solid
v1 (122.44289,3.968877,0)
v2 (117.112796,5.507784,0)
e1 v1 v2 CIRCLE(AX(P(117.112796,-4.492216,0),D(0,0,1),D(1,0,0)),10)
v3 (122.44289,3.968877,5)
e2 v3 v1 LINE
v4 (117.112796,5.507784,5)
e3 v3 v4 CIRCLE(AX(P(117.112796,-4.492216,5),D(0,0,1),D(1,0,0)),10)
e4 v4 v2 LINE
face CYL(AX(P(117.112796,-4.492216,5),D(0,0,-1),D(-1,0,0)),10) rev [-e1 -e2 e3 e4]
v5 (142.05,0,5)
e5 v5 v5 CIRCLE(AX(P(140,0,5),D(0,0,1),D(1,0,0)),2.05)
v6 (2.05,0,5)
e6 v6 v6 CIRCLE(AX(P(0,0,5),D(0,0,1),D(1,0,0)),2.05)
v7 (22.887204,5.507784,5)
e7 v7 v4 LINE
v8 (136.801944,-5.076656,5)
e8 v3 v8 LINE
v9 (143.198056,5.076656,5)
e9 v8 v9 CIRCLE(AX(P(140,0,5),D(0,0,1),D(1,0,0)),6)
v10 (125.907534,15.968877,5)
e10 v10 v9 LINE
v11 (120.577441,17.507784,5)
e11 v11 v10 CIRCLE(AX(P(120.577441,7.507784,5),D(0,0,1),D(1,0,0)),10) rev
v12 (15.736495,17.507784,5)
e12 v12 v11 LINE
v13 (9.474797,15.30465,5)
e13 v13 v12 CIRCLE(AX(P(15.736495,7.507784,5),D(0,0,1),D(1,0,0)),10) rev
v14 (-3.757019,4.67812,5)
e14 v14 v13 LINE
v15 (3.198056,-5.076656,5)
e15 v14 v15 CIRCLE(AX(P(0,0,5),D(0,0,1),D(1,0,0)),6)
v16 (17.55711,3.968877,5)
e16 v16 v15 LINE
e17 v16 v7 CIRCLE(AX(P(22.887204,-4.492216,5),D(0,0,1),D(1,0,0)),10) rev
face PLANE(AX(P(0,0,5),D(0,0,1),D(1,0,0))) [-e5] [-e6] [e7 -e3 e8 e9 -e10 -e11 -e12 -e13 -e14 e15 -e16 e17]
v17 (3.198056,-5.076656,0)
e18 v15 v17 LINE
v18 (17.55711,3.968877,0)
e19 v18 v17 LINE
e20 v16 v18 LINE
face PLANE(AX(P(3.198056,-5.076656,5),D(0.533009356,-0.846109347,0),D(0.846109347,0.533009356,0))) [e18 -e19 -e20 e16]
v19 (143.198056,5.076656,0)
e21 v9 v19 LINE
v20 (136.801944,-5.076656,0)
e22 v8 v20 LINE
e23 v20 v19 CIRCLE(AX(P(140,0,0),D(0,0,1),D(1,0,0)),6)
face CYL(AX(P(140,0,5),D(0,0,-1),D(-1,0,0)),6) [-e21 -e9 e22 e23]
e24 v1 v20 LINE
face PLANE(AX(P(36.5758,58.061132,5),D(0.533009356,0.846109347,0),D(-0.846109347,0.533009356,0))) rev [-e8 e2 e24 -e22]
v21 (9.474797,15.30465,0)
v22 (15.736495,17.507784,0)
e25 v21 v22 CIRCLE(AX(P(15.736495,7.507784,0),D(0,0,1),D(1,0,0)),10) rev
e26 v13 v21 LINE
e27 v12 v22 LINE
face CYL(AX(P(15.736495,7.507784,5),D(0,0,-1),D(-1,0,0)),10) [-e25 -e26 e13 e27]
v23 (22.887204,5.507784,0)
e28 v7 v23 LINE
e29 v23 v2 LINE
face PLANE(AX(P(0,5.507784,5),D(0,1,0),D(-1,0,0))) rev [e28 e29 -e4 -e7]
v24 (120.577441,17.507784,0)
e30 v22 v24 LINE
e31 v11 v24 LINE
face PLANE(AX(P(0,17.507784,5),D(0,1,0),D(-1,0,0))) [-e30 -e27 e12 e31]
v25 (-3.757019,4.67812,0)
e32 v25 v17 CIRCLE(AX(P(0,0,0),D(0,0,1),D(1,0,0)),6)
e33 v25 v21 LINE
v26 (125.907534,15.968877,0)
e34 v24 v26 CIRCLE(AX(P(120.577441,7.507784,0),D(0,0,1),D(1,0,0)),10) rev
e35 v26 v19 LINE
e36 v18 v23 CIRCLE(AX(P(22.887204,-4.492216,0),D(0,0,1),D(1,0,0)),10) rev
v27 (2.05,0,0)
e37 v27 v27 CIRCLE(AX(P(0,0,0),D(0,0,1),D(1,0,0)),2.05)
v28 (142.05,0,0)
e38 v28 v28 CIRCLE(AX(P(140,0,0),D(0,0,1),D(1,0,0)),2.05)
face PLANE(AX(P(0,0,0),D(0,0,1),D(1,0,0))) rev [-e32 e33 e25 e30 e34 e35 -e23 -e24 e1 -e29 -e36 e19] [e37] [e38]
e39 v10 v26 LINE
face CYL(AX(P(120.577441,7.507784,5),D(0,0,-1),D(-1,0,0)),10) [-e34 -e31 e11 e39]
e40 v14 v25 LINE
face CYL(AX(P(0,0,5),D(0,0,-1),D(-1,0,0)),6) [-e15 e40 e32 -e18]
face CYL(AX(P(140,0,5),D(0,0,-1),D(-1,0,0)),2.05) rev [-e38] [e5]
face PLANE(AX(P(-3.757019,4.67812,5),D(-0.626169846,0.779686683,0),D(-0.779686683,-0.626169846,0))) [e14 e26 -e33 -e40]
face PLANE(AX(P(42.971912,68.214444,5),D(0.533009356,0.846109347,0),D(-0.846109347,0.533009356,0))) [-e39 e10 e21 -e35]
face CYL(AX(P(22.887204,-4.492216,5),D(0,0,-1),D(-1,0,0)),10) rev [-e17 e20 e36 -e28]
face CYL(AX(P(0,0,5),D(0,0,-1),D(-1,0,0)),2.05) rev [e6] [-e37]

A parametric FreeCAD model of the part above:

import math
import FreeCAD as App
import Part
import Sketcher
Q = App.Units.Quantity

doc = App.newDocument("Part")
params = doc.addObject("Spreadsheet::Sheet", "Params")
for row, (alias, value) in enumerate([
    ("sketch1_radius", "6 mm"),
    ("sketch1_radius2", "10 mm"),
    ("sketch1_diameter", "4.1 mm"),
    ("pad1_length", "5 mm"),
], start=1):
    params.set(f"A{row}", alias)
    params.set(f"B{row}", "=" + value)
    params.setAlias(f"B{row}", alias)

body = doc.addObject("PartDesign::Body", "Body")

# Sketch on XY plane
sketch1 = body.newObject("Sketcher::SketchObject", "Sketch")
sketch1.AttachmentSupport = (doc.getObject("XY_Plane"), [""])
sketch1.MapMode = "FlatFace"
sketch1.addGeometry([
    Part.LineSegment(App.Vector(9.474797, 15.30465, 0), App.Vector(-3.757019, 4.67812, 0)),  # 0
    Part.ArcOfCircle(Part.Circle(App.Vector(0, 0, 0), App.Vector(0, 0, 1), 6), math.radians(128.768103), math.radians(302.209011)),  # 1
    Part.LineSegment(App.Vector(3.198056, -5.076656, 0), App.Vector(17.55711, 3.968877, 0)),  # 2
    Part.ArcOfCircle(Part.Circle(App.Vector(22.887204, -4.492216, 0), App.Vector(0, 0, 1), 10), math.radians(90), math.radians(122.209011)),  # 3
    Part.LineSegment(App.Vector(22.887204, 5.507784, 0), App.Vector(117.112796, 5.507784, 0)),  # 4
    Part.ArcOfCircle(Part.Circle(App.Vector(117.112796, -4.492216, 0), App.Vector(0, 0, 1), 10), math.radians(57.790989), math.radians(90)),  # 5
    Part.LineSegment(App.Vector(122.44289, 3.968877, 0), App.Vector(136.801944, -5.076656, 0)),  # 6
    Part.ArcOfCircle(Part.Circle(App.Vector(140, 0, 0), App.Vector(0, 0, 1), 6), math.radians(-122.209011), math.radians(57.790989)),  # 7
    Part.LineSegment(App.Vector(143.198056, 5.076656, 0), App.Vector(125.907534, 15.968877, 0)),  # 8
    Part.ArcOfCircle(Part.Circle(App.Vector(120.577441, 7.507784, 0), App.Vector(0, 0, 1), 10), math.radians(57.790989), math.radians(90)),  # 9
    Part.LineSegment(App.Vector(120.577441, 17.507784, 0), App.Vector(15.736495, 17.507784, 0)),  # 10
    Part.ArcOfCircle(Part.Circle(App.Vector(15.736495, 7.507784, 0), App.Vector(0, 0, 1), 10), math.radians(90), math.radians(128.768103)),  # 11
    Part.Circle(App.Vector(140, 0, 0), App.Vector(0, 0, 1), 2.05),  # 12
    Part.Circle(App.Vector(0, 0, 0), App.Vector(0, 0, 1), 2.05),  # 13
], False)
sketch1.addConstraint([
    Sketcher.Constraint("Tangent", 0, 2, 1, 1),
    Sketcher.Constraint("Tangent", 1, 2, 2, 1),
    Sketcher.Constraint("Tangent", 2, 2, 3, 2),
    Sketcher.Constraint("Tangent", 3, 1, 4, 1),
    Sketcher.Constraint("Tangent", 4, 2, 5, 2),
    Sketcher.Constraint("Tangent", 5, 1, 6, 1),
    Sketcher.Constraint("Tangent", 6, 2, 7, 1),
    Sketcher.Constraint("Tangent", 7, 2, 8, 1),
    Sketcher.Constraint("Tangent", 8, 2, 9, 1),
    Sketcher.Constraint("Tangent", 9, 2, 10, 1),
    Sketcher.Constraint("Tangent", 10, 2, 11, 1),
    Sketcher.Constraint("Tangent", 11, 2, 0, 1),
    Sketcher.Constraint("Horizontal", 4),
    Sketcher.Constraint("Horizontal", 10),
    Sketcher.Constraint("Coincident", 1, 3, -1, 1),
    Sketcher.Constraint("Coincident", 13, 3, -1, 1),
    Sketcher.Constraint("Coincident", 12, 3, 7, 3),
    Sketcher.Constraint("Equal", 3, 5),
    Sketcher.Constraint("Equal", 1, 7),
    Sketcher.Constraint("Equal", 5, 9),
    Sketcher.Constraint("Equal", 9, 11),
    Sketcher.Constraint("Equal", 12, 13),
    Sketcher.Constraint("PointOnObject", 7, 3, -1),
    Sketcher.Constraint("Parallel", 6, 8),
    Sketcher.Constraint("Horizontal", 2, 2, 5, 1),
    Sketcher.Constraint("Equal", 0, 2),
    Sketcher.Constraint("Radius", 1, Q("6 mm")),
    Sketcher.Constraint("Radius", 3, Q("10 mm")),
    Sketcher.Constraint("Diameter", 12, Q("4.1 mm")),
    Sketcher.Constraint("DistanceX", -1, 1, 7, 3, Q("140 mm")),
    Sketcher.Constraint("DistanceY", 5, 3, 9, 3, Q("12 mm")),
    Sketcher.Constraint("DistanceX", 11, 3, 5, 3, Q("101.376301 mm")),
    Sketcher.Constraint("DistanceX", 11, 2, 10, 2, Q("6.261698 mm")),
])
sketch1.setExpression("Constraints[26]", "Params.sketch1_radius")
sketch1.setExpression("Constraints[27]", "Params.sketch1_radius2")
sketch1.setExpression("Constraints[28]", "Params.sketch1_diameter")
pad1 = body.newObject("PartDesign::Pad", "Pad")
pad1.Profile = sketch1
pad1.setExpression("Length", "Params.pad1_length")

doc.recompute()
